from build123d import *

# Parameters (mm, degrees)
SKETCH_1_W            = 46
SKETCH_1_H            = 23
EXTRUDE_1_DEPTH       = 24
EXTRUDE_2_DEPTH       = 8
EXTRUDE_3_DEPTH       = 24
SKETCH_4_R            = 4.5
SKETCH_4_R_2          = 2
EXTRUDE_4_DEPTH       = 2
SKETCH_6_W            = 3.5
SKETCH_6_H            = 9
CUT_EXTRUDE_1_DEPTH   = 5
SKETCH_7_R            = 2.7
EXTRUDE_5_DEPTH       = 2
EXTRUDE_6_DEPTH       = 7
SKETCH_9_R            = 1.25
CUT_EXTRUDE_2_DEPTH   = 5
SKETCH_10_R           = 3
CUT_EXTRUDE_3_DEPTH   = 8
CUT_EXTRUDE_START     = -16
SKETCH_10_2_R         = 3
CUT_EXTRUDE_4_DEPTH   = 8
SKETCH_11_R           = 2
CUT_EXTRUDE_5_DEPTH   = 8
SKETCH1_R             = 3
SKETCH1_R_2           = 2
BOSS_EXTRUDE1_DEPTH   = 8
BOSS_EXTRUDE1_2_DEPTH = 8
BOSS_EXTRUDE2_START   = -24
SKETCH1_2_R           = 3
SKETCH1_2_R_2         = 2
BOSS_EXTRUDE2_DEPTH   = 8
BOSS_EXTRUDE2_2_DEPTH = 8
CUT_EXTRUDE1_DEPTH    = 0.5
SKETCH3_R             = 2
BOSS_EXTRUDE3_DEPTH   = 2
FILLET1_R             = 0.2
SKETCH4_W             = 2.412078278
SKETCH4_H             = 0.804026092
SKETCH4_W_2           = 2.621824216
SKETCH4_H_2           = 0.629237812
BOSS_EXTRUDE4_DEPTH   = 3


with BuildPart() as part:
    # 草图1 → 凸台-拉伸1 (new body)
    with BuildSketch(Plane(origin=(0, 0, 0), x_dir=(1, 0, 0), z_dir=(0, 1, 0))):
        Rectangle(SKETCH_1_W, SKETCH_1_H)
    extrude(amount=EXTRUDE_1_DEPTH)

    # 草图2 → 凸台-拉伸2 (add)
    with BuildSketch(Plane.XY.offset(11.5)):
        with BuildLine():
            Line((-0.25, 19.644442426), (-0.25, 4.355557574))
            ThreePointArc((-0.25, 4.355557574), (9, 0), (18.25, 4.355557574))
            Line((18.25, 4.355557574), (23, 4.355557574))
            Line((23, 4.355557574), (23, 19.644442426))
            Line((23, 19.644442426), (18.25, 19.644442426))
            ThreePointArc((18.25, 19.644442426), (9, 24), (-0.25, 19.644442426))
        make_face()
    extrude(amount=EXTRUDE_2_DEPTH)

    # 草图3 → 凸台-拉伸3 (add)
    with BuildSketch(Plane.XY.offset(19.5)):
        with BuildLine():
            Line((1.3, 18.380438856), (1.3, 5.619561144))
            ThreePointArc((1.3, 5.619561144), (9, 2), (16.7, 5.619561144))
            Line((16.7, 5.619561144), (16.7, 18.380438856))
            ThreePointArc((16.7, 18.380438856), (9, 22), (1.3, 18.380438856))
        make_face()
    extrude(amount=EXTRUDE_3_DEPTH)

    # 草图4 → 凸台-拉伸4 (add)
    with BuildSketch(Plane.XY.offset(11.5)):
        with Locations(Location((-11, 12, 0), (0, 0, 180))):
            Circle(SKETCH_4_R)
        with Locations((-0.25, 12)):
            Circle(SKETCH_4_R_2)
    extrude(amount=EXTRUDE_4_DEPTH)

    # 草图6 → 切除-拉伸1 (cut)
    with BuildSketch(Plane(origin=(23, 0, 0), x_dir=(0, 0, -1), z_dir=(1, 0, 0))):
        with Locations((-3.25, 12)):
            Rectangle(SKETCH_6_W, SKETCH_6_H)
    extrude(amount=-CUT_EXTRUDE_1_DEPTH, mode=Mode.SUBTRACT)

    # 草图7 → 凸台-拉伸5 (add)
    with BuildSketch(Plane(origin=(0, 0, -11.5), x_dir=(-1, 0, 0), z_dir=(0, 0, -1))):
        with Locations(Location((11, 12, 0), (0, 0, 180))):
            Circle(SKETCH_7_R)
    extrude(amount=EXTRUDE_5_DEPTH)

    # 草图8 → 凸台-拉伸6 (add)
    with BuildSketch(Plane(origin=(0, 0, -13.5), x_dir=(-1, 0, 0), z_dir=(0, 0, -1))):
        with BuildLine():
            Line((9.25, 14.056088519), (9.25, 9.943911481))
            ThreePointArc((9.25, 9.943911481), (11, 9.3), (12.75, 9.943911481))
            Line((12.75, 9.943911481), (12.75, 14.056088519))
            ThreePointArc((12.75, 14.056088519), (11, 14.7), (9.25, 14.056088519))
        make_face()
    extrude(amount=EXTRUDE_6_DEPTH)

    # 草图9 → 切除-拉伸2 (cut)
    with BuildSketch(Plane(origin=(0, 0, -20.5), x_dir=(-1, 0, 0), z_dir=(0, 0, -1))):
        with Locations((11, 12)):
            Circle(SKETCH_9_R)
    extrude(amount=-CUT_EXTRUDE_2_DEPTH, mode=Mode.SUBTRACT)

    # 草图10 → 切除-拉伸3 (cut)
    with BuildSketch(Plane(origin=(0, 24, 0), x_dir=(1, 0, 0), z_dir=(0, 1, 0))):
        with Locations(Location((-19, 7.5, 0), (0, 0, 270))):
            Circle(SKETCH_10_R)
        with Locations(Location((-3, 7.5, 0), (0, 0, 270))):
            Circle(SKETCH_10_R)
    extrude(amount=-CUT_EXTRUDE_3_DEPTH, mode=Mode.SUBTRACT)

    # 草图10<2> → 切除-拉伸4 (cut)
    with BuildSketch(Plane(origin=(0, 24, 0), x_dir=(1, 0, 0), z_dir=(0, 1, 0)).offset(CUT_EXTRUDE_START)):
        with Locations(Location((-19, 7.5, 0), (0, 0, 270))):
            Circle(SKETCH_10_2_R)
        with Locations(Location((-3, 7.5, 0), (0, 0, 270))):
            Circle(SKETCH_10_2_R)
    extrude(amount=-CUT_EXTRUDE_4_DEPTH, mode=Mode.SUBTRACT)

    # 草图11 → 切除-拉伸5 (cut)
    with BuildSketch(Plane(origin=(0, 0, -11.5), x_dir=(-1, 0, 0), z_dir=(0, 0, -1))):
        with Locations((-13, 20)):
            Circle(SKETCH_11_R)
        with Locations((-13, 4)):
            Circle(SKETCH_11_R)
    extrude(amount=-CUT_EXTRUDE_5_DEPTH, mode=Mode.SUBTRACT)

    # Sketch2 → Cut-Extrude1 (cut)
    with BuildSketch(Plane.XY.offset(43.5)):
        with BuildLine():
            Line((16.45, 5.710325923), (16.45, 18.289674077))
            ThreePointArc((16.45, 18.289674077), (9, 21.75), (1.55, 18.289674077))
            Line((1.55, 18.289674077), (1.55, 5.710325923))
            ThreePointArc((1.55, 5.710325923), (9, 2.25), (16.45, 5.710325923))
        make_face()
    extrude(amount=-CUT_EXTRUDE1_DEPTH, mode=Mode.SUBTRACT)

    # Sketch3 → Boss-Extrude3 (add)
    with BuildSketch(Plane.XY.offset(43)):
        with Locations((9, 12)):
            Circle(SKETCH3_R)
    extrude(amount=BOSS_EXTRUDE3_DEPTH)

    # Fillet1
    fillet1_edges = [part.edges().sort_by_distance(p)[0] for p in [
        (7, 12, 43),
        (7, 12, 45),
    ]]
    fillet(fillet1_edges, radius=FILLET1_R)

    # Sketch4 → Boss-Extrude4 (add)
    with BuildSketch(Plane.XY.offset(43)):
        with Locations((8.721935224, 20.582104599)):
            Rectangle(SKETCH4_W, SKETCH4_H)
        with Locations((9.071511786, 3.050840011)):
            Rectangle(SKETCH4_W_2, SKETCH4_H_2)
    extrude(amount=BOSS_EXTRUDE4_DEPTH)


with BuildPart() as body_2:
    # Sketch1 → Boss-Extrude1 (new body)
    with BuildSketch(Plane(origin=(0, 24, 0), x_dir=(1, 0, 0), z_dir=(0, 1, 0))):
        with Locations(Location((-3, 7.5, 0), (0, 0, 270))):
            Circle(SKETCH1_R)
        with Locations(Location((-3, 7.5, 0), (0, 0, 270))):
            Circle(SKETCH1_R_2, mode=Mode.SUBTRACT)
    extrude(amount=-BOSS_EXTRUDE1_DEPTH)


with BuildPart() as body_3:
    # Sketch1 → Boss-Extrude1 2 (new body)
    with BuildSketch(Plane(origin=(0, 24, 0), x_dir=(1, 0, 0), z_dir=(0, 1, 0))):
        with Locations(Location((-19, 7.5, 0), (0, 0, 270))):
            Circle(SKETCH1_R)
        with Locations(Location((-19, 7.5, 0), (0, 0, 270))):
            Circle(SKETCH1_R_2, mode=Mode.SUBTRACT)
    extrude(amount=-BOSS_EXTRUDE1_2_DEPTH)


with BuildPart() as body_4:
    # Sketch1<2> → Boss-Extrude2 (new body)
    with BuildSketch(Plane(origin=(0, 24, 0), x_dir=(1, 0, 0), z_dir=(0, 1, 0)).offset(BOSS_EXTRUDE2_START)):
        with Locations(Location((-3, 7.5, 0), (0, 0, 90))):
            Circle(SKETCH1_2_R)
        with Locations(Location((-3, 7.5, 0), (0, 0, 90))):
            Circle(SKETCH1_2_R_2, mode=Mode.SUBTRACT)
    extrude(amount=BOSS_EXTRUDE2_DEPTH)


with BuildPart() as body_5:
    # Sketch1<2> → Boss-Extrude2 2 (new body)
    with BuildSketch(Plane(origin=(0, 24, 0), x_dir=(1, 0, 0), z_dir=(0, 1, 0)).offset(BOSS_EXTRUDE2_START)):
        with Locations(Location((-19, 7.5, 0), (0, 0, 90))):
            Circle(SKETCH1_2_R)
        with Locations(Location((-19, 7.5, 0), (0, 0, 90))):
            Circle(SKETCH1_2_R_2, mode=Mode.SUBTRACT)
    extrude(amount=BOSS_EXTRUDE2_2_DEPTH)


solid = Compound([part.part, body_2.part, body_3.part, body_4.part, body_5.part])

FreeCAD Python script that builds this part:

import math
import FreeCAD as App
import Part
import Sketcher

V = App.Vector


def edges_at(feature, points):
    """Names of the edges that pass closest to the given points."""
    edges = feature.Shape.Edges
    near = lambda p: min(range(len(edges)), key=lambda i: edges[i].distToShape(Part.Vertex(*p))[0])
    return sorted({f"Edge{near(p) + 1}" for p in points})

doc = App.newDocument("Part")
body = doc.addObject("PartDesign::Body", "Body")

sketch1 = body.newObject("Sketcher::SketchObject", "Sketch")
sketch1.AttachmentSupport = (doc.getObject("XZ_Plane"), [""])
sketch1.MapMode = "FlatFace"
sketch1.addGeometry([
    Part.LineSegment(V(-23, -12, 0), V(-23, 12, 0)),
    Part.LineSegment(V(-23, 12, 0), V(23, 12, 0)),
    Part.LineSegment(V(23, 12, 0), V(23, -12, 0)),
    Part.LineSegment(V(23, -12, 0), V(-23, -12, 0)),
], False)
sketch1.addConstraint([
    Sketcher.Constraint("Coincident", 0, 2, 1, 1),
    Sketcher.Constraint("Coincident", 1, 2, 2, 1),
    Sketcher.Constraint("Coincident", 2, 2, 3, 1),
    Sketcher.Constraint("Coincident", 3, 2, 0, 1),
    Sketcher.Constraint("Vertical", 0),
    Sketcher.Constraint("Horizontal", 1),
    Sketcher.Constraint("Vertical", 2),
    Sketcher.Constraint("Horizontal", 3),
    Sketcher.Constraint("Symmetric", 0, 2, 2, 2, -1, 1),
    Sketcher.Constraint("DistanceX", 1, 1, 1, 2, 46.0),
    Sketcher.Constraint("DistanceY", 0, 1, 0, 2, 23.0),
])
pad1 = body.newObject("PartDesign::Pad", "Pad")
pad1.Profile = sketch1
pad1.Length = 24
pad1.Reversed = True

sketch2 = body.newObject("Sketcher::SketchObject", "Sketch001")
sketch2.AttachmentSupport = (doc.getObject("XY_Plane"), [""])
sketch2.MapMode = "FlatFace"
sketch2.AttachmentOffset = App.Placement(V(0, 0, 11.5), App.Rotation())
sketch2.addGeometry([
    Part.LineSegment(V(-0.2, 19.6, 0), V(-0.2, 4.4, 0)),
    Part.ArcOfCircle(Part.Circle(V(9, 12, 0), V(0, 0, 1), 12), math.radians(-140), math.radians(-40)),
    Part.LineSegment(V(18.2, 4.4, 0), V(23, 4.4, 0)),
    Part.LineSegment(V(23, 4.4, 0), V(23, 19.6, 0)),
    Part.LineSegment(V(23, 19.6, 0), V(18.2, 19.6, 0)),
    Part.ArcOfCircle(Part.Circle(V(9, 12, 0), V(0, 0, 1), 12), math.radians(40), math.radians(140)),
], False)
sketch2.addConstraint([
    Sketcher.Constraint("Coincident", 0, 2, 1, 1),
    Sketcher.Constraint("Coincident", 1, 2, 2, 1),
    Sketcher.Constraint("Coincident", 2, 2, 3, 1),
    Sketcher.Constraint("Coincident", 3, 2, 4, 1),
    Sketcher.Constraint("Coincident", 4, 2, 5, 1),
    Sketcher.Constraint("Coincident", 5, 2, 0, 1),
    Sketcher.Constraint("Vertical", 0),
    Sketcher.Constraint("Horizontal", 2),
    Sketcher.Constraint("Vertical", 3),
    Sketcher.Constraint("Horizontal", 4),
    Sketcher.Constraint("Coincident", 5, 3, 1, 3),
    Sketcher.Constraint("Equal", 1, 5),
    Sketcher.Constraint("Horizontal", 0, 2, 1, 2),
    Sketcher.Constraint("Horizontal", 4, 2, 5, 2),
    Sketcher.Constraint("Radius", 1, 12.0),
    Sketcher.Constraint("DistanceX", -1, 1, 1, 3, 9.0),
    Sketcher.Constraint("DistanceY", -1, 1, 1, 3, 12.0),
    Sketcher.Constraint("DistanceX", -1, 1, 2, 2, 23.0),
    Sketcher.Constraint("DistanceX", 2, 1, 2, 2, 4.75),
])
pad2 = body.newObject("PartDesign::Pad", "Pad001")
pad2.Profile = sketch2
pad2.Length = 8

sketch3 = body.newObject("Sketcher::SketchObject", "Sketch002")
sketch3.AttachmentSupport = (doc.getObject("XY_Plane"), [""])
sketch3.MapMode = "FlatFace"
sketch3.AttachmentOffset = App.Placement(V(0, 0, 19.5), App.Rotation())
sketch3.addGeometry([
    Part.LineSegment(V(1, 18, 0), V(1, 6, 0)),
    Part.ArcOfCircle(Part.Circle(V(9, 12, 0), V(0, 0, 1), 10), math.radians(-140), math.radians(-40)),
    Part.LineSegment(V(17, 6, 0), V(17, 18, 0)),
    Part.ArcOfCircle(Part.Circle(V(9, 12, 0), V(0, 0, 1), 10), math.radians(40), math.radians(140)),
], False)
sketch3.addConstraint([
    Sketcher.Constraint("Coincident", 0, 2, 1, 1),
    Sketcher.Constraint("Coincident", 1, 2, 2, 1),
    Sketcher.Constraint("Coincident", 2, 2, 3, 1),
    Sketcher.Constraint("Coincident", 3, 2, 0, 1),
    Sketcher.Constraint("Vertical", 0),
    Sketcher.Constraint("Vertical", 2),
    Sketcher.Constraint("Coincident", 3, 3, 1, 3),
    Sketcher.Constraint("Equal", 1, 3),
    Sketcher.Constraint("Horizontal", 0, 2, 1, 2),
    Sketcher.Constraint("Radius", 1, 10.0),
    Sketcher.Constraint("DistanceX", -1, 1, 1, 3, 9.0),
    Sketcher.Constraint("DistanceY", -1, 1, 1, 3, 12.0),
    Sketcher.Constraint("DistanceX", -1, 1, 0, 2, 1.3),
])
pad3 = body.newObject("PartDesign::Pad", "Pad002")
pad3.Profile = sketch3
pad3.Length = 24

sketch4 = body.newObject("Sketcher::SketchObject", "Sketch003")
sketch4.AttachmentSupport = (doc.getObject("XY_Plane"), [""])
sketch4.MapMode = "FlatFace"
sketch4.AttachmentOffset = App.Placement(V(0, 0, 11.5), App.Rotation())
sketch4.addGeometry([
    Part.Circle(V(-11, 12, 0), V(0, 0, 1), 4.5),
    Part.Circle(V(-0.2, 12, 0), V(0, 0, 1), 2),
], False)
sketch4.addConstraint([
    Sketcher.Constraint("Horizontal", 0, 3, 1, 3),
    Sketcher.Constraint("Diameter", 0, 9.0),
    Sketcher.Constraint("Diameter", 1, 4.0),
    Sketcher.Constraint("DistanceX", 0, 3, -1, 1, 11.0),
    Sketcher.Constraint("DistanceY", -1, 1, 0, 3, 12.0),
    Sketcher.Constraint("DistanceX", 1, 3, -1, 1, 0.25),
])
pad4 = body.newObject("PartDesign::Pad", "Pad003")
pad4.Profile = sketch4
pad4.Length = 2

sketch5 = body.newObject("Sketcher::SketchObject", "Sketch004")
sketch5.AttachmentSupport = (doc.getObject("YZ_Plane"), [""])
sketch5.MapMode = "FlatFace"
sketch5.AttachmentOffset = App.Placement(V(0, 0, 23), App.Rotation())
sketch5.addGeometry([
    Part.LineSegment(V(16.5, 5, 0), V(7.5, 5, 0)),
    Part.LineSegment(V(7.5, 5, 0), V(7.5, 1.5, 0)),
    Part.LineSegment(V(7.5, 1.5, 0), V(16.5, 1.5, 0)),
    Part.LineSegment(V(16.5, 1.5, 0), V(16.5, 5, 0)),
], False)
sketch5.addConstraint([
    Sketcher.Constraint("Coincident", 0, 2, 1, 1),
    Sketcher.Constraint("Coincident", 1, 2, 2, 1),
    Sketcher.Constraint("Coincident", 2, 2, 3, 1),
    Sketcher.Constraint("Coincident", 3, 2, 0, 1),
    Sketcher.Constraint("Horizontal", 0),
    Sketcher.Constraint("Vertical", 1),
    Sketcher.Constraint("Horizontal", 2),
    Sketcher.Constraint("Vertical", 3),
    Sketcher.Constraint("DistanceX", 0, 2, 0, 1, 9.0),
    Sketcher.Constraint("DistanceY", 1, 2, 1, 1, 3.5),
    Sketcher.Constraint("DistanceY", -1, 1, 0, 2, 5.0),
    Sketcher.Constraint("DistanceX", -1, 1, 0, 2, 7.5),
])
pocket1 = body.newObject("PartDesign::Pocket", "Pocket")
pocket1.Profile = sketch5
pocket1.Length = 5

sketch6 = body.newObject("Sketcher::SketchObject", "Sketch005")
sketch6.AttachmentSupport = (doc.getObject("XY_Plane"), [""])
sketch6.MapMode = "FlatFace"
sketch6.AttachmentOffset = App.Placement(V(0, 0, -11.5), App.Rotation())
sketch6.addGeometry(Part.Circle(V(-11, 12, 0), V(0, 0, 1), 2.7), False)
sketch6.addConstraint([
    Sketcher.Constraint("Diameter", 0, 5.4),
    Sketcher.Constraint("DistanceX", 0, 3, -1, 1, 11.0),
    Sketcher.Constraint("DistanceY", -1, 1, 0, 3, 12.0),
])
pad5 = body.newObject("PartDesign::Pad", "Pad004")
pad5.Profile = sketch6
pad5.Length = 2
pad5.Reversed = True

sketch7 = body.newObject("Sketcher::SketchObject", "Sketch006")
sketch7.AttachmentSupport = (doc.getObject("XY_Plane"), [""])
sketch7.MapMode = "FlatFace"
sketch7.AttachmentOffset = App.Placement(V(0, 0, -13.5), App.Rotation())
sketch7.addGeometry([
    Part.LineSegment(V(-9.2, 14.1, 0), V(-9.2, 9.9, 0)),
    Part.ArcOfCircle(Part.Circle(V(-11, 12, 0), V(0, 0, 1), 2.7), math.radians(-130), math.radians(-50)),
    Part.LineSegment(V(-12.8, 9.9, 0), V(-12.8, 14.1, 0)),
    Part.ArcOfCircle(Part.Circle(V(-11, 12, 0), V(0, 0, 1), 2.7), math.radians(50), math.radians(130)),
], False)
sketch7.addConstraint([
    Sketcher.Constraint("Coincident", 0, 2, 1, 2),
    Sketcher.Constraint("Coincident", 1, 1, 2, 1),
    Sketcher.Constraint("Coincident", 2, 2, 3, 2),
    Sketcher.Constraint("Coincident", 3, 1, 0, 1),
    Sketcher.Constraint("Vertical", 0),
    Sketcher.Constraint("Vertical", 2),
    Sketcher.Constraint("Coincident", 3, 3, 1, 3),
    Sketcher.Constraint("Equal", 1, 3),
    Sketcher.Constraint("Horizontal", 0, 2, 1, 1),
    Sketcher.Constraint("Radius", 1, 2.7),
    Sketcher.Constraint("DistanceX", 1, 3, -1, 1, 11.0),
    Sketcher.Constraint("DistanceY", -1, 1, 1, 3, 12.0),
    Sketcher.Constraint("DistanceX", 1, 1, 0, 2, 3.5),
])
pad6 = body.newObject("PartDesign::Pad", "Pad005")
pad6.Profile = sketch7
pad6.Length = 7
pad6.Reversed = True

sketch8 = body.newObject("Sketcher::SketchObject", "Sketch007")
sketch8.AttachmentSupport = (doc.getObject("XY_Plane"), [""])
sketch8.MapMode = "FlatFace"
sketch8.AttachmentOffset = App.Placement(V(0, 0, -20.5), App.Rotation())
sketch8.addGeometry(Part.Circle(V(-11, 12, 0), V(0, 0, 1), 1.2), False)
sketch8.addConstraint([
    Sketcher.Constraint("Diameter", 0, 2.5),
    Sketcher.Constraint("DistanceX", 0, 3, -1, 1, 11.0),
    Sketcher.Constraint("DistanceY", -1, 1, 0, 3, 12.0),
])
pocket2 = body.newObject("PartDesign::Pocket", "Pocket001")
pocket2.Profile = sketch8
pocket2.Length = 5
pocket2.Reversed = True

sketch9 = body.newObject("Sketcher::SketchObject", "Sketch008")
sketch9.AttachmentSupport = (doc.getObject("XZ_Plane"), [""])
sketch9.MapMode = "FlatFace"
sketch9.AttachmentOffset = App.Placement(V(0, 0, -24), App.Rotation())
sketch9.addGeometry([
    Part.Circle(V(-19, -7.5, 0), V(0, 0, 1), 3),
    Part.Circle(V(-3, -7.5, 0), V(0, 0, 1), 3),
], False)
sketch9.addConstraint([
    Sketcher.Constraint("Equal", 0, 1),
    Sketcher.Constraint("Horizontal", 0, 3, 1, 3),
    Sketcher.Constraint("Diameter", 0, 6.0),
    Sketcher.Constraint("DistanceX", 0, 3, -1, 1, 19.0),
    Sketcher.Constraint("DistanceX", 1, 3, -1, 1, 3.0),
    Sketcher.Constraint("DistanceY", 0, 3, -1, 1, 7.5),
])
pocket3 = body.newObject("PartDesign::Pocket", "Pocket002")
pocket3.Profile = sketch9
pocket3.Length = 8
pocket3.Reversed = True

sketch10 = body.newObject("Sketcher::SketchObject", "Sketch009")
sketch10.AttachmentSupport = (doc.getObject("XZ_Plane"), [""])
sketch10.MapMode = "FlatFace"
sketch10.AttachmentOffset = App.Placement(V(0, 0, -8), App.Rotation())
sketch10.addGeometry([
    Part.Circle(V(-19, -7.5, 0), V(0, 0, 1), 3),
    Part.Circle(V(-3, -7.5, 0), V(0, 0, 1), 3),
], False)
sketch10.addConstraint([
    Sketcher.Constraint("Equal", 0, 1),
    Sketcher.Constraint("Horizontal", 0, 3, 1, 3),
    Sketcher.Constraint("Diameter", 0, 6.0),
    Sketcher.Constraint("DistanceX", 0, 3, -1, 1, 19.0),
    Sketcher.Constraint("DistanceX", 1, 3, -1, 1, 3.0),
    Sketcher.Constraint("DistanceY", 0, 3, -1, 1, 7.5),
])
pocket4 = body.newObject("PartDesign::Pocket", "Pocket003")
pocket4.Profile = sketch10
pocket4.Length = 8
pocket4.Reversed = True

sketch11 = body.newObject("Sketcher::SketchObject", "Sketch010")
sketch11.AttachmentSupport = (doc.getObject("XY_Plane"), [""])
sketch11.MapMode = "FlatFace"
sketch11.AttachmentOffset = App.Placement(V(0, 0, -11.5), App.Rotation())
sketch11.addGeometry([
    Part.Circle(V(13, 20, 0), V(0, 0, 1), 2),
    Part.Circle(V(13, 4, 0), V(0, 0, 1), 2),
], False)
sketch11.addConstraint([
    Sketcher.Constraint("Equal", 0, 1),
    Sketcher.Constraint("Vertical", 0, 3, 1, 3),
    Sketcher.Constraint("Diameter", 0, 4.0),
    Sketcher.Constraint("DistanceX", -1, 1, 0, 3, 13.0),
    Sketcher.Constraint("DistanceY", -1, 1, 0, 3, 20.0),
    Sketcher.Constraint("DistanceY", -1, 1, 1, 3, 4.0),
])
pocket5 = body.newObject("PartDesign::Pocket", "Pocket004")
pocket5.Profile = sketch11
pocket5.Length = 8
pocket5.Reversed = True

sketch12 = body.newObject("Sketcher::SketchObject", "Sketch011")
sketch12.AttachmentSupport = (doc.getObject("XY_Plane"), [""])
sketch12.MapMode = "FlatFace"
sketch12.AttachmentOffset = App.Placement(V(0, 0, 43.5), App.Rotation())
sketch12.addGeometry([
    Part.LineSegment(V(16, 6, 0), V(16, 18, 0)),
    Part.ArcOfCircle(Part.Circle(V(9, 12, 0), V(0, 0, 1), 10), math.radians(40), math.radians(140)),
    Part.LineSegment(V(2, 18, 0), V(2, 6, 0)),
    Part.ArcOfCircle(Part.Circle(V(9, 12, 0), V(0, 0, 1), 10), math.radians(-140), math.radians(-40)),
], False)
sketch12.addConstraint([
    Sketcher.Constraint("Coincident", 0, 2, 1, 1),
    Sketcher.Constraint("Coincident", 1, 2, 2, 1),
    Sketcher.Constraint("Coincident", 2, 2, 3, 1),
    Sketcher.Constraint("Coincident", 3, 2, 0, 1),
    Sketcher.Constraint("Vertical", 0),
    Sketcher.Constraint("Vertical", 2),
    Sketcher.Constraint("Coincident", 3, 3, 1, 3),
    Sketcher.Constraint("Equal", 1, 3),
    Sketcher.Constraint("Horizontal", 0, 2, 1, 2),
    Sketcher.Constraint("Radius", 1, 9.75),
    Sketcher.Constraint("DistanceX", -1, 1, 1, 3, 9.0),
    Sketcher.Constraint("DistanceY", -1, 1, 1, 3, 12.0),
    Sketcher.Constraint("DistanceX", 1, 2, 0, 2, 14.9),
])
pocket6 = body.newObject("PartDesign::Pocket", "Pocket005")
pocket6.Profile = sketch12
pocket6.Length = 0.5

sketch13 = body.newObject("Sketcher::SketchObject", "Sketch012")
sketch13.AttachmentSupport = (doc.getObject("XY_Plane"), [""])
sketch13.MapMode = "FlatFace"
sketch13.AttachmentOffset = App.Placement(V(0, 0, 43), App.Rotation())
sketch13.addGeometry(Part.Circle(V(9, 12, 0), V(0, 0, 1), 2), False)
sketch13.addConstraint([
    Sketcher.Constraint("Diameter", 0, 4.0),
    Sketcher.Constraint("DistanceX", -1, 1, 0, 3, 9.0),
    Sketcher.Constraint("DistanceY", -1, 1, 0, 3, 12.0),
])
pad7 = body.newObject("PartDesign::Pad", "Pad006")
pad7.Profile = sketch13
pad7.Length = 2
doc.recompute()

fillet = body.newObject("PartDesign::Fillet", "Fillet")
fillet.Base = (pad7, edges_at(pad7, [(7, 12, 43), (7, 12, 45)]))
fillet.Radius = 0.2

sketch14 = body.newObject("Sketcher::SketchObject", "Sketch013")
sketch14.AttachmentSupport = (doc.getObject("XY_Plane"), [""])
sketch14.MapMode = "FlatFace"
sketch14.AttachmentOffset = App.Placement(V(0, 0, 43), App.Rotation())
sketch14.addGeometry([
    Part.LineSegment(V(7.5, 21, 0), V(7.5, 20.2, 0)),
    Part.LineSegment(V(7.5, 20.2, 0), V(9.9, 20.2, 0)),
    Part.LineSegment(V(9.9, 20.2, 0), V(9.9, 21, 0)),
    Part.LineSegment(V(9.9, 21, 0), V(7.5, 21, 0)),
    Part.LineSegment(V(7.8, 3.4, 0), V(7.8, 2.7, 0)),
    Part.LineSegment(V(7.8, 2.7, 0), V(10.4, 2.7, 0)),
    Part.LineSegment(V(10.4, 2.7, 0), V(10.4, 3.4, 0)),
    Part.LineSegment(V(10.4, 3.4, 0), V(7.8, 3.4, 0)),
], False)
sketch14.addConstraint([
    Sketcher.Constraint("Coincident", 0, 2, 1, 1),
    Sketcher.Constraint("Coincident", 1, 2, 2, 1),
    Sketcher.Constraint("Coincident", 2, 2, 3, 1),
    Sketcher.Constraint("Coincident", 3, 2, 0, 1),
    Sketcher.Constraint("Coincident", 4, 2, 5, 1),
    Sketcher.Constraint("Coincident", 5, 2, 6, 1),
    Sketcher.Constraint("Coincident", 6, 2, 7, 1),
    Sketcher.Constraint("Coincident", 7, 2, 4, 1),
    Sketcher.Constraint("Vertical", 0),
    Sketcher.Constraint("Horizontal", 1),
    Sketcher.Constraint("Vertical", 2),
    Sketcher.Constraint("Horizontal", 3),
    Sketcher.Constraint("Vertical", 4),
    Sketcher.Constraint("Horizontal", 5),
    Sketcher.Constraint("Vertical", 6),
    Sketcher.Constraint("Horizontal", 7),
    Sketcher.Constraint("DistanceX", 1, 1, 1, 2, 2.412078),
    Sketcher.Constraint("DistanceX", -1, 1, 4, 2, 7.7606),
    Sketcher.Constraint("DistanceX", 5, 1, 5, 2, 2.621824),
    Sketcher.Constraint("DistanceY", 0, 2, 0, 1, 0.804026),
    Sketcher.Constraint("DistanceY", 4, 2, 4, 1, 0.629238),
    Sketcher.Constraint("DistanceY", -1, 1, 0, 2, 20.180092),
    Sketcher.Constraint("DistanceY", -1, 1, 4, 2, 2.736221),
    Sketcher.Constraint("DistanceX", 1, 2, 5, 2, 0.45445),
])
pad8 = body.newObject("PartDesign::Pad", "Pad007")
pad8.Profile = sketch14
pad8.Length = 3
body2 = doc.addObject("PartDesign::Body", "Body001")

sketch15 = body2.newObject("Sketcher::SketchObject", "Sketch014")
sketch15.AttachmentSupport = (doc.getObject("XZ_Plane001"), [""])
sketch15.MapMode = "FlatFace"
sketch15.AttachmentOffset = App.Placement(V(0, 0, -24), App.Rotation())
sketch15.addGeometry([
    Part.Circle(V(-3, -7.5, 0), V(0, 0, 1), 3),
    Part.Circle(V(-3, -7.5, 0), V(0, 0, 1), 2),
], False)
sketch15.addConstraint([
    Sketcher.Constraint("Coincident", 1, 3, 0, 3),
    Sketcher.Constraint("Diameter", 0, 6.0),
    Sketcher.Constraint("Diameter", 1, 4.0),
    Sketcher.Constraint("DistanceX", 0, 3, -1, 1, 3.0),
    Sketcher.Constraint("DistanceY", 0, 3, -1, 1, 7.5),
])
pad9 = body2.newObject("PartDesign::Pad", "Pad008")
pad9.Profile = sketch15
pad9.Length = 8
body3 = doc.addObject("PartDesign::Body", "Body002")

sketch16 = body3.newObject("Sketcher::SketchObject", "Sketch015")
sketch16.AttachmentSupport = (doc.getObject("XZ_Plane002"), [""])
sketch16.MapMode = "FlatFace"
sketch16.AttachmentOffset = App.Placement(V(0, 0, -24), App.Rotation())
sketch16.addGeometry([
    Part.Circle(V(-19, -7.5, 0), V(0, 0, 1), 3),
    Part.Circle(V(-19, -7.5, 0), V(0, 0, 1), 2),
], False)
sketch16.addConstraint([
    Sketcher.Constraint("Coincident", 1, 3, 0, 3),
    Sketcher.Constraint("Diameter", 0, 6.0),
    Sketcher.Constraint("Diameter", 1, 4.0),
    Sketcher.Constraint("DistanceX", 0, 3, -1, 1, 19.0),
    Sketcher.Constraint("DistanceY", 0, 3, -1, 1, 7.5),
])
pad10 = body3.newObject("PartDesign::Pad", "Pad009")
pad10.Profile = sketch16
pad10.Length = 8
body4 = doc.addObject("PartDesign::Body", "Body003")

sketch17 = body4.newObject("Sketcher::SketchObject", "Sketch016")
sketch17.AttachmentSupport = (doc.getObject("XZ_Plane003"), [""])
sketch17.MapMode = "FlatFace"
sketch17.addGeometry([
    Part.Circle(V(-3, -7.5, 0), V(0, 0, 1), 3),
    Part.Circle(V(-3, -7.5, 0), V(0, 0, 1), 2),
], False)
sketch17.addConstraint([
    Sketcher.Constraint("Coincident", 1, 3, 0, 3),
    Sketcher.Constraint("Diameter", 0, 6.0),
    Sketcher.Constraint("Diameter", 1, 4.0),
    Sketcher.Constraint("DistanceX", 0, 3, -1, 1, 3.0),
    Sketcher.Constraint("DistanceY", 0, 3, -1, 1, 7.5),
])
pad11 = body4.newObject("PartDesign::Pad", "Pad010")
pad11.Profile = sketch17
pad11.Length = 8
pad11.Reversed = True
body5 = doc.addObject("PartDesign::Body", "Body004")

sketch18 = body5.newObject("Sketcher::SketchObject", "Sketch017")
sketch18.AttachmentSupport = (doc.getObject("XZ_Plane004"), [""])
sketch18.MapMode = "FlatFace"
sketch18.addGeometry([
    Part.Circle(V(-19, -7.5, 0), V(0, 0, 1), 3),
    Part.Circle(V(-19, -7.5, 0), V(0, 0, 1), 2),
], False)
sketch18.addConstraint([
    Sketcher.Constraint("Coincident", 1, 3, 0, 3),
    Sketcher.Constraint("Diameter", 0, 6.0),
    Sketcher.Constraint("Diameter", 1, 4.0),
    Sketcher.Constraint("DistanceX", 0, 3, -1, 1, 19.0),
    Sketcher.Constraint("DistanceY", 0, 3, -1, 1, 7.5),
])
pad12 = body5.newObject("PartDesign::Pad", "Pad011")
pad12.Profile = sketch18
pad12.Length = 8
pad12.Reversed = True

doc.recompute()
